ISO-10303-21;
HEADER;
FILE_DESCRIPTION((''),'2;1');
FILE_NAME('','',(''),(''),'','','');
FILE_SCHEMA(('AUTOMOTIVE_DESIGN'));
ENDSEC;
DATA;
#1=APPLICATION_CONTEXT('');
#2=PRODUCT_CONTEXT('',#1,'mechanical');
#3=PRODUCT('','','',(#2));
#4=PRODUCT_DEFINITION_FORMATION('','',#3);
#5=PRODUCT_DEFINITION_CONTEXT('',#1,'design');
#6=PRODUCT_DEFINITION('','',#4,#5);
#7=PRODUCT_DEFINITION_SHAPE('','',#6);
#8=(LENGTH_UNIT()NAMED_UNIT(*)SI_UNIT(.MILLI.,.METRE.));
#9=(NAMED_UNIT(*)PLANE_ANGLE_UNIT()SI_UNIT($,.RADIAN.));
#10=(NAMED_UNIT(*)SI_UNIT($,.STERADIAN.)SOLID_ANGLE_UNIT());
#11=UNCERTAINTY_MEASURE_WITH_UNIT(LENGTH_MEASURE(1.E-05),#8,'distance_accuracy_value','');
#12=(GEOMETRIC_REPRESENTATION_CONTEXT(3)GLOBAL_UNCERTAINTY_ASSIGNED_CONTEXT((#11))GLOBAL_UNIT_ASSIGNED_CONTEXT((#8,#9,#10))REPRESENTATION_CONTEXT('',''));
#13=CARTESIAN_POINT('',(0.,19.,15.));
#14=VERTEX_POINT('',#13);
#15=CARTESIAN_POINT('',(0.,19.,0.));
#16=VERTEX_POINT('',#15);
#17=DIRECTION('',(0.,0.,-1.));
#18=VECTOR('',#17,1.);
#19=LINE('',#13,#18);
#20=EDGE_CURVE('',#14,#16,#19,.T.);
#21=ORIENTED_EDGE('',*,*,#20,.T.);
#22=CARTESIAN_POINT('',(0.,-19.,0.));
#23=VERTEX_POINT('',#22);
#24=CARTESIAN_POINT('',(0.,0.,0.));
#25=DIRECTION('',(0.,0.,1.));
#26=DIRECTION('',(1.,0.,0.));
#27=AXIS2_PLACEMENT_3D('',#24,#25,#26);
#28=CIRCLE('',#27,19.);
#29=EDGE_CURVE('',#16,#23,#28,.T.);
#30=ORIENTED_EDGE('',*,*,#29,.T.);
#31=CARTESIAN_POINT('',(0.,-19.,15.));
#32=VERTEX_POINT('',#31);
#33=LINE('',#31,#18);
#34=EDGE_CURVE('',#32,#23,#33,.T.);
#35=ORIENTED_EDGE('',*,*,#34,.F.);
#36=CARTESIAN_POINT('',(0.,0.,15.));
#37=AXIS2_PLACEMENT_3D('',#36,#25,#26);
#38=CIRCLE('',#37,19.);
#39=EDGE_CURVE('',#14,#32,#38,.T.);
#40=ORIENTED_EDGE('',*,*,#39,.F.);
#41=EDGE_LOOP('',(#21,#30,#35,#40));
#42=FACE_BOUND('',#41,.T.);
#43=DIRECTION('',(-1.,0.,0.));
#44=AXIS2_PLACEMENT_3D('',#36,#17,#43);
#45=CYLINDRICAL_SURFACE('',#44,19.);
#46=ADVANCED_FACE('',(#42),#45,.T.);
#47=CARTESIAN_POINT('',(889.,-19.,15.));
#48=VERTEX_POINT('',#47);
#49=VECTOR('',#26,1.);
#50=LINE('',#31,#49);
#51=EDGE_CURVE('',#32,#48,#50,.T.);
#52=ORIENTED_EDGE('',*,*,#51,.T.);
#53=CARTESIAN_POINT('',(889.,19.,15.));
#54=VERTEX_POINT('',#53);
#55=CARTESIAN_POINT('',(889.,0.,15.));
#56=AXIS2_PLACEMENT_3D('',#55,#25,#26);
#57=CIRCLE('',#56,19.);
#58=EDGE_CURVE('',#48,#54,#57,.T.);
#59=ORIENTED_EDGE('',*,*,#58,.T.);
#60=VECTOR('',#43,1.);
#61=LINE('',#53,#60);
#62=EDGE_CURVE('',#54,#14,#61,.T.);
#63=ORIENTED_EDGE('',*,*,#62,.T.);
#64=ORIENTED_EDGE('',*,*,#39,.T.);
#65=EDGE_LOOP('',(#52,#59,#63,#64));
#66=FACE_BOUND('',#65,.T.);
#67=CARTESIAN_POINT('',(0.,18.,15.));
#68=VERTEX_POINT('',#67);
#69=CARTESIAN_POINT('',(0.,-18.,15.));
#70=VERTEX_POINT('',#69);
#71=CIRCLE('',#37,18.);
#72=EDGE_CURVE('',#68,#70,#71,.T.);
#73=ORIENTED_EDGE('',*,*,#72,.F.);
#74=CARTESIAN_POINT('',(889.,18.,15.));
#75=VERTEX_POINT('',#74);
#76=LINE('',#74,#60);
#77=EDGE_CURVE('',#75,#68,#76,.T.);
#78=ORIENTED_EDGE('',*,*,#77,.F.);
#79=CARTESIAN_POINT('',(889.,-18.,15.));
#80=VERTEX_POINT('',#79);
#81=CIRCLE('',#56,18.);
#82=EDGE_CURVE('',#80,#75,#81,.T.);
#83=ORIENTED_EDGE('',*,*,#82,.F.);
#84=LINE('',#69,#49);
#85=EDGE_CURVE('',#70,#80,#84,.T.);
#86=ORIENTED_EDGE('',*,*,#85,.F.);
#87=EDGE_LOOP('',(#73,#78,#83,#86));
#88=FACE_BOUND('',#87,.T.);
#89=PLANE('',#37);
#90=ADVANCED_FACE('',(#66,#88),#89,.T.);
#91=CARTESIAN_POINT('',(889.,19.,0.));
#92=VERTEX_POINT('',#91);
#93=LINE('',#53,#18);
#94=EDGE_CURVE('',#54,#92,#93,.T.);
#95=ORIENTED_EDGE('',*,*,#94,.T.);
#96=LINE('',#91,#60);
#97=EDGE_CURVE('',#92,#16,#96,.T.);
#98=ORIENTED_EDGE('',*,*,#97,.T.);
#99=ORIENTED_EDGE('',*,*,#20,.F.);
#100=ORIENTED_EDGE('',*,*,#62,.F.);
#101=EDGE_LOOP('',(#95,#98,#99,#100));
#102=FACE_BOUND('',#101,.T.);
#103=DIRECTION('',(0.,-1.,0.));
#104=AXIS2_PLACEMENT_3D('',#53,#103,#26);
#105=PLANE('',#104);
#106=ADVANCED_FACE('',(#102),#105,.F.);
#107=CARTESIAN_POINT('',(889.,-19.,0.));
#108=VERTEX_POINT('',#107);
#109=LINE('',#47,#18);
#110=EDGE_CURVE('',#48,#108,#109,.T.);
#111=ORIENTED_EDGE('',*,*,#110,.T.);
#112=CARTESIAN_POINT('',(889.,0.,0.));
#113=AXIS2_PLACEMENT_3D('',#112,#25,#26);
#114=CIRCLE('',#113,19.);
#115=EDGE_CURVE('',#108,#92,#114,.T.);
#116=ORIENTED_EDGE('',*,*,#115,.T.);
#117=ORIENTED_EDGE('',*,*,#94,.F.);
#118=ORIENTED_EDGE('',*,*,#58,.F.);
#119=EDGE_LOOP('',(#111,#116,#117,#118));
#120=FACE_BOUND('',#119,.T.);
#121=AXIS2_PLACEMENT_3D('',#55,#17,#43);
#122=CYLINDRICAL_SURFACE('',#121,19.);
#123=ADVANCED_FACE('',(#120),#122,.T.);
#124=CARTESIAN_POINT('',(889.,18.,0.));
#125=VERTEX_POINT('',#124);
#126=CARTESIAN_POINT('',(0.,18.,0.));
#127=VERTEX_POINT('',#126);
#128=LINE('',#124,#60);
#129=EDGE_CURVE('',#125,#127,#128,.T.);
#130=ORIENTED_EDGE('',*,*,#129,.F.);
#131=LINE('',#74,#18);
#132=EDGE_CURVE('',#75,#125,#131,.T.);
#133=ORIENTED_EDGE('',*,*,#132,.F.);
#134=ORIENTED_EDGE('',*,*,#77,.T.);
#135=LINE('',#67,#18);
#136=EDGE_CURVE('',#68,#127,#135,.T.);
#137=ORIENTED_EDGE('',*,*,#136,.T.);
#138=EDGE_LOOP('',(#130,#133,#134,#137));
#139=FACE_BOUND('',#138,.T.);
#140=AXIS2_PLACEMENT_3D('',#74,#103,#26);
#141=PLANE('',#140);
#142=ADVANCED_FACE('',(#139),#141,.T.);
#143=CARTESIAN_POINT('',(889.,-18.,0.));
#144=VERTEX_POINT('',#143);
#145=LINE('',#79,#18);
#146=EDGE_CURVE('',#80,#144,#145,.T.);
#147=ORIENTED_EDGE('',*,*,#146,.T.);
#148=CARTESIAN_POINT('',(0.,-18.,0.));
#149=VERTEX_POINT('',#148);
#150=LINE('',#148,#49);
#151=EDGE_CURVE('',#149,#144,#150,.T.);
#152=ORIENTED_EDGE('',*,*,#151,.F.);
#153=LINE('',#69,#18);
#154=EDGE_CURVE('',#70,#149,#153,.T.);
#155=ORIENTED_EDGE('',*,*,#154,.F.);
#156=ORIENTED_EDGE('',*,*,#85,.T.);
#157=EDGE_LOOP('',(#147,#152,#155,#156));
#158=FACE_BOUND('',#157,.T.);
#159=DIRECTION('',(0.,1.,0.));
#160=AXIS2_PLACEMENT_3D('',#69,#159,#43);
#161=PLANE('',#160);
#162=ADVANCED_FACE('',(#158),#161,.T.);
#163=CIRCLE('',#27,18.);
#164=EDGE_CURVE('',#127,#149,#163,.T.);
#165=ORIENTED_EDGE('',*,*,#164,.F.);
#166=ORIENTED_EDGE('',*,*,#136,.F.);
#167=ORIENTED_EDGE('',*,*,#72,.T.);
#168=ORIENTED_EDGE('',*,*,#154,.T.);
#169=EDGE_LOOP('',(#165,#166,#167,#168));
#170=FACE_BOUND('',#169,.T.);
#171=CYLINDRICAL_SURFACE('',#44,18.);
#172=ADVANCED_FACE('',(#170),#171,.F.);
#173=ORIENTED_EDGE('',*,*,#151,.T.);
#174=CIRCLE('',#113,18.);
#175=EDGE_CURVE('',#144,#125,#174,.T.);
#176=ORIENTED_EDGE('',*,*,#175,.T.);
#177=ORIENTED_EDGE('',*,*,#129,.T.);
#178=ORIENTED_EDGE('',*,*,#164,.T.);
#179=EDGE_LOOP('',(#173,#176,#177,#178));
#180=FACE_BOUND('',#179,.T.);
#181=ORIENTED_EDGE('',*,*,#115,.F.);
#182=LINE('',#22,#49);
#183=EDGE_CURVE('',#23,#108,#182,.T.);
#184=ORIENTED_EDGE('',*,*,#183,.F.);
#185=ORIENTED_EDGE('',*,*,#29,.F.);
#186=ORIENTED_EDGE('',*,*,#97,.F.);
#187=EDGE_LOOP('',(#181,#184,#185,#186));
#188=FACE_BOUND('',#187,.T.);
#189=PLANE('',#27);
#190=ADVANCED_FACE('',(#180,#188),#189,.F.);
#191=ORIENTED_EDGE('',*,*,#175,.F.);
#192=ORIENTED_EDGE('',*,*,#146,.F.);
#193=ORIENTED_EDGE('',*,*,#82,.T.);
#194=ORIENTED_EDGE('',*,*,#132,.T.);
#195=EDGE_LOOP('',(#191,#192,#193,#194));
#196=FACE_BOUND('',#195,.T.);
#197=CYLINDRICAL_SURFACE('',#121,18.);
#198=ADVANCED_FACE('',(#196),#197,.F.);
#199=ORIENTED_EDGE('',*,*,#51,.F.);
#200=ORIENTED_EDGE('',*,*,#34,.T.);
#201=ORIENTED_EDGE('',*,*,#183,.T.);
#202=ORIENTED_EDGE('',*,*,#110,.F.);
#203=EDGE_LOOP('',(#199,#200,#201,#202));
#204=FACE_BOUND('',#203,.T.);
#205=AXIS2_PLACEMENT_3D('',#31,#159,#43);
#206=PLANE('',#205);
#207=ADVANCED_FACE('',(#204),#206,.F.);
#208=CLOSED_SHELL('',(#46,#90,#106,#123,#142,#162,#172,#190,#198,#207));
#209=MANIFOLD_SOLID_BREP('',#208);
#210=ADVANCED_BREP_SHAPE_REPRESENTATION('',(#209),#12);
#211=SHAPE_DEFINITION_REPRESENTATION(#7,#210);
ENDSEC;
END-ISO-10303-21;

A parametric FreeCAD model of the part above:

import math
import FreeCAD as App
import Part
import Sketcher
Q = App.Units.Quantity

doc = App.newDocument("Part")
body = doc.addObject("PartDesign::Body", "Body")

sketch1 = body.newObject("Sketcher::SketchObject", "Sketch")
sketch1.AttachmentSupport = (doc.getObject("XY_Plane"), [""])
sketch1.MapMode = "FlatFace"
sketch1.addGeometry(Part.LineSegment(App.Vector(0, -19, 0), App.Vector(889, -19, 0)), False)
sketch1.addGeometry(Part.ArcOfCircle(Part.Circle(App.Vector(889, 0, 0), App.Vector(0, 0, 1), 19), math.radians(-90), math.radians(90)), False)
sketch1.addGeometry(Part.LineSegment(App.Vector(889, 19, 0), App.Vector(0, 19, 0)), False)
sketch1.addGeometry(Part.ArcOfCircle(Part.Circle(App.Vector(0, 0, 0), App.Vector(0, 0, 1), 19), math.radians(90), math.radians(270)), False)
sketch1.addGeometry(Part.LineSegment(App.Vector(0, 18, 0), App.Vector(889, 18, 0)), False)
sketch1.addGeometry(Part.ArcOfCircle(Part.Circle(App.Vector(889, 0, 0), App.Vector(0, 0, 1), 18), math.radians(-90), math.radians(90)), False)
sketch1.addGeometry(Part.LineSegment(App.Vector(889, -18, 0), App.Vector(0, -18, 0)), False)
sketch1.addGeometry(Part.ArcOfCircle(Part.Circle(App.Vector(0, 0, 0), App.Vector(0, 0, 1), 18), math.radians(90), math.radians(270)), False)
sketch1.addConstraint(Sketcher.Constraint("Tangent", 0, 2, 1, 1))
sketch1.addConstraint(Sketcher.Constraint("Tangent", 1, 2, 2, 1))
sketch1.addConstraint(Sketcher.Constraint("Tangent", 2, 2, 3, 1))
sketch1.addConstraint(Sketcher.Constraint("Tangent", 3, 2, 0, 1))
sketch1.addConstraint(Sketcher.Constraint("Tangent", 4, 2, 5, 2))
sketch1.addConstraint(Sketcher.Constraint("Tangent", 5, 1, 6, 1))
sketch1.addConstraint(Sketcher.Constraint("Tangent", 6, 2, 7, 2))
sketch1.addConstraint(Sketcher.Constraint("Tangent", 7, 1, 4, 1))
sketch1.addConstraint(Sketcher.Constraint("Horizontal", 0))
sketch1.addConstraint(Sketcher.Constraint("Horizontal", 2))
sketch1.addConstraint(Sketcher.Constraint("Horizontal", 4))
sketch1.addConstraint(Sketcher.Constraint("Horizontal", 6))
sketch1.addConstraint(Sketcher.Constraint("Coincident", 3, 3, -1, 1))
sketch1.addConstraint(Sketcher.Constraint("Coincident", 7, 3, -1, 1))
sketch1.addConstraint(Sketcher.Constraint("Vertical", 5, 3, 0, 2))
sketch1.addConstraint(Sketcher.Constraint("Radius", 1, Q("19 mm")))
sketch1.addConstraint(Sketcher.Constraint("Radius", 5, Q("18 mm")))
sketch1.addConstraint(Sketcher.Constraint("DistanceX", 0, 1, 0, 2, Q("889 mm")))
pad1 = body.newObject("PartDesign::Pad", "Pad")
pad1.Profile = sketch1
pad1.Length = 15

doc.recompute()
